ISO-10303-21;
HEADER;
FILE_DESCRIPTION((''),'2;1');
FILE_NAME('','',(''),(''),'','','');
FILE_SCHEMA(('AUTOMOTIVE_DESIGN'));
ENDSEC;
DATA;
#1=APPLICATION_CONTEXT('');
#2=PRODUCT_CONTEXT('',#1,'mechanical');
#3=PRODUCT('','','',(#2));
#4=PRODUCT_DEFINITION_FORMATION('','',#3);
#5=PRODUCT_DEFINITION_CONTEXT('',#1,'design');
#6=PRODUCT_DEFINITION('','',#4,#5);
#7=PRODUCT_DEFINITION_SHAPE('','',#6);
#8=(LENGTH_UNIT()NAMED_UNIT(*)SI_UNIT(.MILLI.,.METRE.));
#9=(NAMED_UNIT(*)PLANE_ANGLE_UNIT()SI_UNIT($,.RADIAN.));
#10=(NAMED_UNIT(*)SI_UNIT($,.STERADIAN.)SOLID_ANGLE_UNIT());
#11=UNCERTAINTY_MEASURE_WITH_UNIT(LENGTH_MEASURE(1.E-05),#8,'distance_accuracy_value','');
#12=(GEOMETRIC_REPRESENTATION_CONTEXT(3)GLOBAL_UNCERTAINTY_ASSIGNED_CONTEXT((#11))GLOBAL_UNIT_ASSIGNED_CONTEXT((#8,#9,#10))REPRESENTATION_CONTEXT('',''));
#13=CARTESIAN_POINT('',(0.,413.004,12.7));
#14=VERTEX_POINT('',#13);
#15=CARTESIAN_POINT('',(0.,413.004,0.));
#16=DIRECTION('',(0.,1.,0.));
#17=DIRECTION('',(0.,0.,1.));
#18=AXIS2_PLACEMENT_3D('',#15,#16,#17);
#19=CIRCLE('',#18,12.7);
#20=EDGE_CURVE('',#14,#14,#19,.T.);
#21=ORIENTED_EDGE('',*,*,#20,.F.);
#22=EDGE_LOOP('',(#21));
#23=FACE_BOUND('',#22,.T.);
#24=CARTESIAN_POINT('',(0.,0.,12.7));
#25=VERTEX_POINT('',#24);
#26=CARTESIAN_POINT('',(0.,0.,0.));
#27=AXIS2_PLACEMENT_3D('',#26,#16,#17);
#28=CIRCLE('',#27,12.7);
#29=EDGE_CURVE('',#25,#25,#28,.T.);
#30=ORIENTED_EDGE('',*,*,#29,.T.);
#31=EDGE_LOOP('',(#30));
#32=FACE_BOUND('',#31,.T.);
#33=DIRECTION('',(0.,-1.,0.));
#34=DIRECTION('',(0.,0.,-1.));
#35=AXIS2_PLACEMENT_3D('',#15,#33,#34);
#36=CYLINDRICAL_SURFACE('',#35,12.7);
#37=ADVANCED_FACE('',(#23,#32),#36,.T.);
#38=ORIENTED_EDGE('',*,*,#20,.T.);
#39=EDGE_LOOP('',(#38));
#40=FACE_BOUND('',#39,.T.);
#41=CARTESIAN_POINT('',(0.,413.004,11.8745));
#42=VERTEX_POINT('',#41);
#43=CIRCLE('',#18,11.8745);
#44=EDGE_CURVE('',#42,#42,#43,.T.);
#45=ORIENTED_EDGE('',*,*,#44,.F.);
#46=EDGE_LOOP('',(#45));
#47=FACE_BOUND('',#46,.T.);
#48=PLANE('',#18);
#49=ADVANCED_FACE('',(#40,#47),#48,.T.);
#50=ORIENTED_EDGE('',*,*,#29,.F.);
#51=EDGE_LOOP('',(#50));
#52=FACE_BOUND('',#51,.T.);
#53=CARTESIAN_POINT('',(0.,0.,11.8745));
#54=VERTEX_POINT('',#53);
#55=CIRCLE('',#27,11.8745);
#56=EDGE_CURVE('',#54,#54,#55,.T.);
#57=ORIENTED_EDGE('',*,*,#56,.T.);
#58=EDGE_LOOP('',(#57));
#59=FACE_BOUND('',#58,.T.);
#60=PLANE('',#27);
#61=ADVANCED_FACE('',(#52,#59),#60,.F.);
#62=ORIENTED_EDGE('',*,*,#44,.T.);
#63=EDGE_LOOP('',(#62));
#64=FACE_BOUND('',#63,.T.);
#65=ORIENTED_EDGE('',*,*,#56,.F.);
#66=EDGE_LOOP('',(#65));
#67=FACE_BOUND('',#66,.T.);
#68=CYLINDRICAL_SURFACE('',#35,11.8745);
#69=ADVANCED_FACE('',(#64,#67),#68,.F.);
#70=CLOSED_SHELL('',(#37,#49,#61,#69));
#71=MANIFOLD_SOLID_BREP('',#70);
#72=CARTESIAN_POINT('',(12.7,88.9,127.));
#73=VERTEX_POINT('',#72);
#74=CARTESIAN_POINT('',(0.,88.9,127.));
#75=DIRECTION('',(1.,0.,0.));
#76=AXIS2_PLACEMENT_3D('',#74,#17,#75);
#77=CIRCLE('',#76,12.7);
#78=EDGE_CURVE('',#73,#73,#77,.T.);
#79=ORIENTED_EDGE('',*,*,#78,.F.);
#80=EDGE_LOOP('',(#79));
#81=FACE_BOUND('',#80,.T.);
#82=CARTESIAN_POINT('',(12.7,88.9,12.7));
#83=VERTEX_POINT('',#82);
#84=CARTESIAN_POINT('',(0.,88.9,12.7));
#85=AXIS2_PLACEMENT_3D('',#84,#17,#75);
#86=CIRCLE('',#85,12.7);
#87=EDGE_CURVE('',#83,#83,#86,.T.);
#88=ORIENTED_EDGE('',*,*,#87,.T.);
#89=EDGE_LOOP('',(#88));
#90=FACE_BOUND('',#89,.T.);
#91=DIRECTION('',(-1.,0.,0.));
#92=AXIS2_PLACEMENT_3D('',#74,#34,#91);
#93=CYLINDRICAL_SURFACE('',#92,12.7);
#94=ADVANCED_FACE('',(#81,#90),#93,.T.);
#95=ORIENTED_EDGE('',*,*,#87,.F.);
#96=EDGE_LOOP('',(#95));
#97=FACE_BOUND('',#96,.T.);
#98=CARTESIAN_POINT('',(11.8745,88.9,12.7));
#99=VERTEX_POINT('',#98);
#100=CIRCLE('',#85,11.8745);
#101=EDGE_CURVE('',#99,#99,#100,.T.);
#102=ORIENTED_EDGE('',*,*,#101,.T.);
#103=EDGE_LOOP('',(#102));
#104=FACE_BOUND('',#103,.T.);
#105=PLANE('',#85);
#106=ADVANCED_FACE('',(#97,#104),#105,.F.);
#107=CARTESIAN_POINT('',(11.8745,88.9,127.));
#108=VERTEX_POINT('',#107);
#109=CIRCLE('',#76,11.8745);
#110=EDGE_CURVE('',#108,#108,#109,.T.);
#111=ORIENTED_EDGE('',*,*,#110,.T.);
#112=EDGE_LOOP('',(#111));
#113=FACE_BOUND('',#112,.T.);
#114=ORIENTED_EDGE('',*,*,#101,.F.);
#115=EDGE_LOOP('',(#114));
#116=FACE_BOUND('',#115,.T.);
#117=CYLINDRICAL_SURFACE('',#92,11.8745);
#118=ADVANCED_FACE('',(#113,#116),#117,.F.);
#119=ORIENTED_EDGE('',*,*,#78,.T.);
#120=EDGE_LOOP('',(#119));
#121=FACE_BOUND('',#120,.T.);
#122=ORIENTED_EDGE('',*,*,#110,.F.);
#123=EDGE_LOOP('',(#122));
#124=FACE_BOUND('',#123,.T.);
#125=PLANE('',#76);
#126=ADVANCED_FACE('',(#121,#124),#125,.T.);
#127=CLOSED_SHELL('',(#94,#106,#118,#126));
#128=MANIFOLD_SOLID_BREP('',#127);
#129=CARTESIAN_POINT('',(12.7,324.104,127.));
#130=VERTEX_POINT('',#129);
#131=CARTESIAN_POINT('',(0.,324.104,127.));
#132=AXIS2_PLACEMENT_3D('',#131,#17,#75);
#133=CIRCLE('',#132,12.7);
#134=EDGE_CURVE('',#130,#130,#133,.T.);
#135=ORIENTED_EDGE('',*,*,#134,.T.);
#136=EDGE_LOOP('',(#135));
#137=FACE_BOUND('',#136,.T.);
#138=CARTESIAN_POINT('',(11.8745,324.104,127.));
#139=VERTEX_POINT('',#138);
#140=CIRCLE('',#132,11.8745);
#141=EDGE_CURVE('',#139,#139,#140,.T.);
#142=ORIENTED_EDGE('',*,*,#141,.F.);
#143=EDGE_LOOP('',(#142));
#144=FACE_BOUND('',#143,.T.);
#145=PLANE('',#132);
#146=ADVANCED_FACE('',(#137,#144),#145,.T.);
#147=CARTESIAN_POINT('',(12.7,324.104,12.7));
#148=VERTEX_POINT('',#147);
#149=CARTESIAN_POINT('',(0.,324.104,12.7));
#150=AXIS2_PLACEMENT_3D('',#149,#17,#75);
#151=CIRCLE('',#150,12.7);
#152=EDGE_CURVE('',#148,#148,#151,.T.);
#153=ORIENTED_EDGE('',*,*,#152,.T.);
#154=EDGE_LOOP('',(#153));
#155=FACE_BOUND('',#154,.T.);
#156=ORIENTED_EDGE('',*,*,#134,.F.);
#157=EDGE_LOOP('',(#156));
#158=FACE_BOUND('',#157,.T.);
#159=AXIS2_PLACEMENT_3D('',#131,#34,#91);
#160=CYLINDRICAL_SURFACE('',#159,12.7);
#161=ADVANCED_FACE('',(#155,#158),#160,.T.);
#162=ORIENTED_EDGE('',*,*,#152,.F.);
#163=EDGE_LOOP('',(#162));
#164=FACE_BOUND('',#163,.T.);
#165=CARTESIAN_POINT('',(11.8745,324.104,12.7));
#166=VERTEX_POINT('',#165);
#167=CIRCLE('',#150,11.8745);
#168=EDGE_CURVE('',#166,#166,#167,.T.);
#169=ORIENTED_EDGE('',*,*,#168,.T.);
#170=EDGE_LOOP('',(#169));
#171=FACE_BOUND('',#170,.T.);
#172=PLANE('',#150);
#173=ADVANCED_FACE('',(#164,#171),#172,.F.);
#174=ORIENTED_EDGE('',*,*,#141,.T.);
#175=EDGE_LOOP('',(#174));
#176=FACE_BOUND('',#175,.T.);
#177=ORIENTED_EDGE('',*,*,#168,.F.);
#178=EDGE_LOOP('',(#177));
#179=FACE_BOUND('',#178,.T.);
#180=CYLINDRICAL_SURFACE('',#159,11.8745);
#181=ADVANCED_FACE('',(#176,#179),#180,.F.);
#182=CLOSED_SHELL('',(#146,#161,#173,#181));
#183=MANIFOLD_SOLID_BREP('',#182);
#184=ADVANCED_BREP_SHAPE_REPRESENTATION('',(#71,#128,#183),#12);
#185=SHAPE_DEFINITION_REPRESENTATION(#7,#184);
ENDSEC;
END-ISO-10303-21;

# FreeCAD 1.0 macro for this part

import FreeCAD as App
import Part
import Sketcher

V = App.Vector
Q = App.Units.Quantity

doc = App.newDocument("Part")
params = doc.addObject("Spreadsheet::Sheet", "Params")
for row, (alias, value) in enumerate([
    ("sketch1_diameter", "1 in"),
    ("sketch1_diameter2", "0.935 in"),
    ("pad1_length", "16.26 in"),
    ("sketch2_diameter", "1 in"),
    ("sketch2_diameter2", "0.935 in"),
    ("pad2_length", "4.5 in"),
    ("sketch3_diameter", "1 in"),
    ("sketch3_diameter2", "0.935 in"),
    ("pad3_length", "4.5 in"),
], start=1):
    params.set(f"A{row}", alias)
    params.set(f"B{row}", "=" + value)
    params.setAlias(f"B{row}", alias)

body = doc.addObject("PartDesign::Body", "Body")

# Sketch on XZ plane
sketch1 = doc.addObject("Sketcher::SketchObject", "Sketch")
body.addObject(sketch1)
sketch1.AttachmentSupport = (doc.XZ_Plane, [""])
sketch1.MapMode = "FlatFace"
sketch1.addGeometry(Part.Circle(V(0, 0, 0), V(0, 0, 1), 13), False)
sketch1.addGeometry(Part.Circle(V(0, 0, 0), V(0, 0, 1), 12), False)
sketch1.addConstraint(Sketcher.Constraint("Coincident", 0, 3, -1, 1))
sketch1.addConstraint(Sketcher.Constraint("Coincident", 1, 3, -1, 1))
sketch1.addConstraint(Sketcher.Constraint("Diameter", 0, Q("1 in")))
sketch1.addConstraint(Sketcher.Constraint("Diameter", 1, Q("0.935 in")))
sketch1.setExpression("Constraints[2]", "Params.sketch1_diameter")
sketch1.setExpression("Constraints[3]", "Params.sketch1_diameter2")
pad1 = doc.addObject("PartDesign::Pad", "Pad")
body.addObject(pad1)
pad1.Profile = sketch1
pad1.setExpression("Length", "Params.pad1_length")
pad1.Reversed = True
body2 = doc.addObject("PartDesign::Body", "Body001")

# Sketch on XY plane
sketch2 = doc.addObject("Sketcher::SketchObject", "Sketch001")
body2.addObject(sketch2)
sketch2.AttachmentSupport = (doc.getObject("XY_Plane001"), [""])
sketch2.MapMode = "FlatFace"
sketch2.AttachmentOffset = App.Placement(V(0, 0, 0.5 * 25.4), App.Rotation())
sketch2.addGeometry(Part.Circle(V(0, 324, 0), V(0, 0, 1), 13), False)
sketch2.addGeometry(Part.Circle(V(0, 324, 0), V(0, 0, 1), 12), False)
sketch2.addConstraint(Sketcher.Constraint("Coincident", 1, 3, 0, 3))
sketch2.addConstraint(Sketcher.Constraint("PointOnObject", 0, 3, -2))
sketch2.addConstraint(Sketcher.Constraint("Diameter", 0, Q("1 in")))
sketch2.addConstraint(Sketcher.Constraint("Diameter", 1, Q("0.935 in")))
sketch2.addConstraint(Sketcher.Constraint("DistanceY", -1, 1, 0, 3, Q("12.76 in")))
sketch2.setExpression("Constraints[2]", "Params.sketch2_diameter")
sketch2.setExpression("Constraints[3]", "Params.sketch2_diameter2")
pad2 = doc.addObject("PartDesign::Pad", "Pad001")
body2.addObject(pad2)
pad2.Profile = sketch2
pad2.setExpression("Length", "Params.pad2_length")
body3 = doc.addObject("PartDesign::Body", "Body002")

# Sketch on XY plane
sketch3 = doc.addObject("Sketcher::SketchObject", "Sketch002")
body3.addObject(sketch3)
sketch3.AttachmentSupport = (doc.getObject("XY_Plane002"), [""])
sketch3.MapMode = "FlatFace"
sketch3.AttachmentOffset = App.Placement(V(0, 0, 0.5 * 25.4), App.Rotation())
sketch3.addGeometry(Part.Circle(V(0, 89, 0), V(0, 0, 1), 13), False)
sketch3.addGeometry(Part.Circle(V(0, 89, 0), V(0, 0, 1), 12), False)
sketch3.addConstraint(Sketcher.Constraint("Coincident", 1, 3, 0, 3))
sketch3.addConstraint(Sketcher.Constraint("PointOnObject", 0, 3, -2))
sketch3.addConstraint(Sketcher.Constraint("Diameter", 0, Q("1 in")))
sketch3.addConstraint(Sketcher.Constraint("Diameter", 1, Q("0.935 in")))
sketch3.addConstraint(Sketcher.Constraint("DistanceY", -1, 1, 0, 3, Q("3.5 in")))
sketch3.setExpression("Constraints[2]", "Params.sketch3_diameter")
sketch3.setExpression("Constraints[3]", "Params.sketch3_diameter2")
pad3 = doc.addObject("PartDesign::Pad", "Pad002")
body3.addObject(pad3)
pad3.Profile = sketch3
pad3.setExpression("Length", "Params.pad3_length")

doc.recompute()
